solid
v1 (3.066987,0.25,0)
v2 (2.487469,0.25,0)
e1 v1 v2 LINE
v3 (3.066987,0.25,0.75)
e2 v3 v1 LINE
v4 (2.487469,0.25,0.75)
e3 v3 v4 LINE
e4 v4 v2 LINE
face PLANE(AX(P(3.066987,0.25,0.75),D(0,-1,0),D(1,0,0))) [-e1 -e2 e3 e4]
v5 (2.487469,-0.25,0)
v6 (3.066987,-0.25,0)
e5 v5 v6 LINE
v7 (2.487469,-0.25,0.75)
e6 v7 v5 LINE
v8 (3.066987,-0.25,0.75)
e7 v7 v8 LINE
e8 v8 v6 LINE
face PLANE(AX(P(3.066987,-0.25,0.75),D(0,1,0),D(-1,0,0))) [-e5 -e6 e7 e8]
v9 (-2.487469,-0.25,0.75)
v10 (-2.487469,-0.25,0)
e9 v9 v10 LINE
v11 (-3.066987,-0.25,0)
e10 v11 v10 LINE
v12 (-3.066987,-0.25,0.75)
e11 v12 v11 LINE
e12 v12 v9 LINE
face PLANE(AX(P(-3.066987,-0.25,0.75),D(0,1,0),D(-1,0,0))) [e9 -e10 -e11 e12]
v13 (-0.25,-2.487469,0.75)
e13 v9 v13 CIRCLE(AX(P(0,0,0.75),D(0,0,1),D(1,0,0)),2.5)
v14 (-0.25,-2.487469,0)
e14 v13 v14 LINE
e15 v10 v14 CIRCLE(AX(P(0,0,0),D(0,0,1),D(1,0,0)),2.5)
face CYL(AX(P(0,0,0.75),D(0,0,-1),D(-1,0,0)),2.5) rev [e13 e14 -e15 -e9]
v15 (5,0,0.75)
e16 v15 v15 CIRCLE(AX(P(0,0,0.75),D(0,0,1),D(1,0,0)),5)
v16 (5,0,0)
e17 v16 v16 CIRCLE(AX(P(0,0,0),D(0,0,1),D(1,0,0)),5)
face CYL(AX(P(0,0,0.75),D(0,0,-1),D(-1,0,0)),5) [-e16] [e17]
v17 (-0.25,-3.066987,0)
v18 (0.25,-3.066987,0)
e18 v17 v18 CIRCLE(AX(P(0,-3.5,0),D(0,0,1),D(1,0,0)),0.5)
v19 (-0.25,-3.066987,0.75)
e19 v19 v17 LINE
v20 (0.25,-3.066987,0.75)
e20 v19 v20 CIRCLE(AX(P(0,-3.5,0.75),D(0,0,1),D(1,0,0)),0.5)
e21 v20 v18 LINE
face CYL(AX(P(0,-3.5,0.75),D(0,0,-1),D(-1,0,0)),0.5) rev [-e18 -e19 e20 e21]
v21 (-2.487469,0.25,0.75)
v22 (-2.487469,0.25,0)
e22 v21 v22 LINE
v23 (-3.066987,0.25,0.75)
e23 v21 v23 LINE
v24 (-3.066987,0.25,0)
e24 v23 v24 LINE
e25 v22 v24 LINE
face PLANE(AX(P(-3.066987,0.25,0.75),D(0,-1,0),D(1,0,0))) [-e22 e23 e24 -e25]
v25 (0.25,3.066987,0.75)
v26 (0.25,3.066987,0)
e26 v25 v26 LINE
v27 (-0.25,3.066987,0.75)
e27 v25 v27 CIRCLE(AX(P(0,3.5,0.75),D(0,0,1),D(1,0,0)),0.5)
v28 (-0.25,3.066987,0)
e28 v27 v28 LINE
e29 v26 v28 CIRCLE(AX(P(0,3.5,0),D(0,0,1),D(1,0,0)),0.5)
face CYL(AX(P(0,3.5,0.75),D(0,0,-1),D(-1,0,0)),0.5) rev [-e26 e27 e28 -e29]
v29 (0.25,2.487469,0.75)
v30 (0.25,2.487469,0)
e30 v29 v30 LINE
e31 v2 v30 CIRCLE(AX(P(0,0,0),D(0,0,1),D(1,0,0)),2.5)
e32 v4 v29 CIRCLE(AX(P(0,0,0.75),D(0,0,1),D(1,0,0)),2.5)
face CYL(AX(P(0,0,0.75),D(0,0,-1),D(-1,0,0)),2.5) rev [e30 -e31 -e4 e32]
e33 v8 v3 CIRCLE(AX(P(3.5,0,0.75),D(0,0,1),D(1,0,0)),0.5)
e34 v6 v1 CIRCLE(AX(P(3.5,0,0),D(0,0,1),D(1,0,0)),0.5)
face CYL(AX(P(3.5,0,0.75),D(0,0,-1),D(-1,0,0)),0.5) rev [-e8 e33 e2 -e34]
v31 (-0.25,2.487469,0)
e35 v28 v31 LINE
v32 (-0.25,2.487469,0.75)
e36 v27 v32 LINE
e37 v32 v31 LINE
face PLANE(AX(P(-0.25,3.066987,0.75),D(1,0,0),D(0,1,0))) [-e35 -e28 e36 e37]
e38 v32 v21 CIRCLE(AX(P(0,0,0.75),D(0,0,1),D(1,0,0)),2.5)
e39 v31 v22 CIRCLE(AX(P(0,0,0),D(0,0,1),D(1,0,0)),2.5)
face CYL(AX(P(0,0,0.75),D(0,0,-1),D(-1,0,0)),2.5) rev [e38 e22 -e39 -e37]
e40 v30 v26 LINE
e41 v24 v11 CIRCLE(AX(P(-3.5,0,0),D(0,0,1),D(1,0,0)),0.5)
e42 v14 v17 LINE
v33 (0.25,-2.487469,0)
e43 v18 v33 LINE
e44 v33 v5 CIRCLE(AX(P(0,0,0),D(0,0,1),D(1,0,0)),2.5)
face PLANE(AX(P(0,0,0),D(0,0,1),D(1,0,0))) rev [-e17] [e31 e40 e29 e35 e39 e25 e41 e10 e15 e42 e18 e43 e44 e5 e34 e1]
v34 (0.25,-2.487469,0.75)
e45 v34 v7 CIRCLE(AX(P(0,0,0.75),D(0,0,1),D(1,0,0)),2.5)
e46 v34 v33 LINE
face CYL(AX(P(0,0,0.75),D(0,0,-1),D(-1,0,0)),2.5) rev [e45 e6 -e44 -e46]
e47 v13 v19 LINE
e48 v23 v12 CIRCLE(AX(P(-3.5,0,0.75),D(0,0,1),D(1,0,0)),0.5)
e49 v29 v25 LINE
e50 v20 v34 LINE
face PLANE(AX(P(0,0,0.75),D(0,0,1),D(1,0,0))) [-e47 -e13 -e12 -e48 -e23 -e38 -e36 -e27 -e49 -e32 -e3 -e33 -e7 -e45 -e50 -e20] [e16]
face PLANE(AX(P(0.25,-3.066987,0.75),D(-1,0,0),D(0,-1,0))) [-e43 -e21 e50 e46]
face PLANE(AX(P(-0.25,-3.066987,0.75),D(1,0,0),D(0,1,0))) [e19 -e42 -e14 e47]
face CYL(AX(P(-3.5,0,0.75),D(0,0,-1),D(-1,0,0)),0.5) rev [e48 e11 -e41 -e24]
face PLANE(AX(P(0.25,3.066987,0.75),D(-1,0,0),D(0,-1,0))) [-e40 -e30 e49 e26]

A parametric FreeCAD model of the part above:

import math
import FreeCAD as App
import Part
import Sketcher

doc = App.newDocument("Part")
body = doc.addObject("PartDesign::Body", "Body")

# Sketch on XY plane
sketch1 = body.newObject("Sketcher::SketchObject", "Sketch")
sketch1.AttachmentSupport = (doc.getObject("XY_Plane"), [""])
sketch1.MapMode = "FlatFace"
sketch1.addGeometry([
    Part.Circle(App.Vector(0, 0, 0), App.Vector(0, 0, 1), 5),  # 0
    Part.LineSegment(App.Vector(2.5, 0.2, 0), App.Vector(3.1, 0.2, 0)),  # 1
    Part.ArcOfCircle(Part.Circle(App.Vector(3.5, 0, 0), App.Vector(0, 0, 1), 0.5), math.radians(-150), math.radians(150)),  # 2
    Part.LineSegment(App.Vector(3.1, -0.2, 0), App.Vector(2.5, -0.2, 0)),  # 3
    Part.ArcOfCircle(Part.Circle(App.Vector(0, 0, 0), App.Vector(0, 0, 1), 2.5), math.radians(-84), math.radians(-6)),  # 4
    Part.LineSegment(App.Vector(0.2, -2.5, 0), App.Vector(0.2, -3.1, 0)),  # 5
    Part.ArcOfCircle(Part.Circle(App.Vector(0, -3.5, 0), App.Vector(0, 0, 1), 0.5), math.radians(120), math.radians(420)),  # 6
    Part.LineSegment(App.Vector(-0.2, -3.1, 0), App.Vector(-0.2, -2.5, 0)),  # 7
    Part.ArcOfCircle(Part.Circle(App.Vector(0, 0, 0), App.Vector(0, 0, 1), 2.5), math.radians(-174), math.radians(-96)),  # 8
    Part.LineSegment(App.Vector(-2.5, -0.2, 0), App.Vector(-3.1, -0.2, 0)),  # 9
    Part.ArcOfCircle(Part.Circle(App.Vector(-3.5, 0, 0), App.Vector(0, 0, 1), 0.5), math.radians(30), math.radians(330)),  # 10
    Part.LineSegment(App.Vector(-3.1, 0.2, 0), App.Vector(-2.5, 0.2, 0)),  # 11
    Part.ArcOfCircle(Part.Circle(App.Vector(0, 0, 0), App.Vector(0, 0, 1), 2.5), math.radians(96), math.radians(174)),  # 12
    Part.LineSegment(App.Vector(-0.2, 2.5, 0), App.Vector(-0.2, 3.1, 0)),  # 13
    Part.ArcOfCircle(Part.Circle(App.Vector(0, 3.5, 0), App.Vector(0, 0, 1), 0.5), math.radians(-60), math.radians(240)),  # 14
    Part.LineSegment(App.Vector(0.2, 3.1, 0), App.Vector(0.2, 2.5, 0)),  # 15
    Part.ArcOfCircle(Part.Circle(App.Vector(0, 0, 0), App.Vector(0, 0, 1), 2.5), math.radians(6), math.radians(84)),  # 16
], False)
sketch1.addConstraint([
    Sketcher.Constraint("Coincident", 1, 2, 2, 2),
    Sketcher.Constraint("Coincident", 2, 1, 3, 1),
    Sketcher.Constraint("Coincident", 3, 2, 4, 2),
    Sketcher.Constraint("Coincident", 4, 1, 5, 1),
    Sketcher.Constraint("Coincident", 5, 2, 6, 2),
    Sketcher.Constraint("Coincident", 6, 1, 7, 1),
    Sketcher.Constraint("Coincident", 7, 2, 8, 2),
    Sketcher.Constraint("Coincident", 8, 1, 9, 1),
    Sketcher.Constraint("Coincident", 9, 2, 10, 2),
    Sketcher.Constraint("Coincident", 10, 1, 11, 1),
    Sketcher.Constraint("Coincident", 11, 2, 12, 2),
    Sketcher.Constraint("Coincident", 12, 1, 13, 1),
    Sketcher.Constraint("Coincident", 13, 2, 14, 2),
    Sketcher.Constraint("Coincident", 14, 1, 15, 1),
    Sketcher.Constraint("Coincident", 15, 2, 16, 2),
    Sketcher.Constraint("Coincident", 16, 1, 1, 1),
    Sketcher.Constraint("Horizontal", 1),
    Sketcher.Constraint("Horizontal", 3),
    Sketcher.Constraint("Vertical", 5),
    Sketcher.Constraint("Vertical", 7),
    Sketcher.Constraint("Horizontal", 9),
    Sketcher.Constraint("Horizontal", 11),
    Sketcher.Constraint("Vertical", 13),
    Sketcher.Constraint("Vertical", 15),
    Sketcher.Constraint("Coincident", 0, 3, -1, 1),
    Sketcher.Constraint("Coincident", 4, 3, -1, 1),
    Sketcher.Constraint("Coincident", 8, 3, -1, 1),
    Sketcher.Constraint("Coincident", 12, 3, -1, 1),
    Sketcher.Constraint("Coincident", 16, 3, -1, 1),
    Sketcher.Constraint("Equal", 2, 6),
    Sketcher.Constraint("Equal", 4, 8),
    Sketcher.Constraint("Equal", 6, 10),
    Sketcher.Constraint("Equal", 8, 12),
    Sketcher.Constraint("Equal", 10, 14),
    Sketcher.Constraint("Equal", 12, 16),
    Sketcher.Constraint("Symmetric", 2, 3, 10, 3, -1, 1),
    Sketcher.Constraint("Symmetric", 6, 3, 14, 3, -1, 1),
    Sketcher.Constraint("Symmetric", 5, 2, 6, 1, -2),
    Sketcher.Constraint("Symmetric", 2, 1, 9, 2, -2),
    Sketcher.Constraint("Horizontal", 1, 2, 10, 1),
    Sketcher.Constraint("Horizontal", 13, 2, 14, 1),
    Sketcher.Constraint("Vertical", 1, 2, 2, 1),
    Sketcher.Constraint("Vertical", 7, 2, 12, 1),
    Sketcher.Constraint("Equal", 11, 5),
    Sketcher.Constraint("Diameter", 0, 10.0),
    Sketcher.Constraint("Radius", 2, 0.5),
    Sketcher.Constraint("Radius", 4, 2.5),
    Sketcher.Constraint("DistanceX", 10, 3, 2, 3, 7.0),
    Sketcher.Constraint("DistanceY", 6, 3, -1, 1, 3.5),
    Sketcher.Constraint("DistanceY", 2, 1, 1, 2, 0.5),
])
pad1 = body.newObject("PartDesign::Pad", "Pad")
pad1.Profile = sketch1
pad1.Length = 0.75

doc.recompute()
